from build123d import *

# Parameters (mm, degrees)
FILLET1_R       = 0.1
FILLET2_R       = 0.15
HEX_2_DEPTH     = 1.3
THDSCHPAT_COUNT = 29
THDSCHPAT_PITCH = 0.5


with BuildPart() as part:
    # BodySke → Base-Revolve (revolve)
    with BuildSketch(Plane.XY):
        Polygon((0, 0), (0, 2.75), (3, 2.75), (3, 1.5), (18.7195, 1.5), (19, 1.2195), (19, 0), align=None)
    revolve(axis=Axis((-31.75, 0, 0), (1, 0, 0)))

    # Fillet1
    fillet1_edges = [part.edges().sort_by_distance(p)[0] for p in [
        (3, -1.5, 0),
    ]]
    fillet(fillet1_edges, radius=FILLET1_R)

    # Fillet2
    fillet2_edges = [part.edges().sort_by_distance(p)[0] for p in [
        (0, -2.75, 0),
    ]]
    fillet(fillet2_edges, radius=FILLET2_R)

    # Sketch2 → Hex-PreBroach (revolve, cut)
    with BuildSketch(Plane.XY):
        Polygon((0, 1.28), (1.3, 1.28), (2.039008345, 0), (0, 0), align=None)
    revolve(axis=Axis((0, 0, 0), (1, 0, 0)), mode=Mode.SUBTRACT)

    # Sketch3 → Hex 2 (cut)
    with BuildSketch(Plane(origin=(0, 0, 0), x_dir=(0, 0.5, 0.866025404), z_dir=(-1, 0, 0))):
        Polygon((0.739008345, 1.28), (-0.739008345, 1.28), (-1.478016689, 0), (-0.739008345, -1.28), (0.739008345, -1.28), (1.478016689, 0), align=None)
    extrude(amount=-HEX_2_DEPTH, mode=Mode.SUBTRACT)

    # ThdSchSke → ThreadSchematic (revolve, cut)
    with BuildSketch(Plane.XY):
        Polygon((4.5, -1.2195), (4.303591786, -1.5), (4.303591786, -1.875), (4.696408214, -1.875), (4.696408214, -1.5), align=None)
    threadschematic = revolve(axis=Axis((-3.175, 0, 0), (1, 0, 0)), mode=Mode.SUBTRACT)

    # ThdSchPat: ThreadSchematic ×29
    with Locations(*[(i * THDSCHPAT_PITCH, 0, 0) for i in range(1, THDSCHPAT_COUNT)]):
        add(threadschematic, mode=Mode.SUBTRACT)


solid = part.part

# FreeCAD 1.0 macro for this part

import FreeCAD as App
import Part
import Sketcher
Q = App.Units.Quantity


def edges_at(feature, points):
    """Names of the edges that pass closest to the given points."""
    edges = feature.Shape.Edges
    near = lambda p: min(range(len(edges)), key=lambda i: edges[i].distToShape(Part.Vertex(*p))[0])
    return sorted({f"Edge{near(p) + 1}" for p in points})

doc = App.newDocument("Part")
params = doc.addObject("Spreadsheet::Sheet", "Params")
for row, (alias, value) in enumerate([
    ("sketch1_width", "19 mm"),
    ("sketch1_width2", "3 mm"),
    ("sketch1_height", "2.75 mm"),
    ("sketch1_height2", "1.25 mm"),
    ("revolution_angle", "360 deg"),
    ("fillet_radius", "0.1 mm"),
    ("fillet2_radius", "0.15 mm"),
    ("sketch2_width", "1.3 mm"),
    ("sketch2_height", "1.28 mm"),
    ("groove_angle", "360 deg"),
    ("pocket1_length", "1.3 mm"),
    ("groove2_angle", "360 deg"),
    ("linearpattern_pitch", "0.5 mm"),
], start=1):
    params.set(f"A{row}", alias)
    params.set(f"B{row}", "=" + value)
    params.setAlias(f"B{row}", alias)

body = doc.addObject("PartDesign::Body", "Body")

sketch1 = doc.addObject("Sketcher::SketchObject", "Sketch")
body.addObject(sketch1)
sketch1.AttachmentSupport = (doc.XY_Plane, [""])
sketch1.MapMode = "FlatFace"
sketch1.addGeometry([
    Part.LineSegment(App.Vector(0, 2.75, 0), App.Vector(0, 0, 0)),
    Part.LineSegment(App.Vector(0, 0, 0), App.Vector(19, 0, 0)),
    Part.LineSegment(App.Vector(19, 0, 0), App.Vector(19, 1.22, 0)),
    Part.LineSegment(App.Vector(19, 1.22, 0), App.Vector(18.72, 1.5, 0)),
    Part.LineSegment(App.Vector(18.72, 1.5, 0), App.Vector(3, 1.5, 0)),
    Part.LineSegment(App.Vector(3, 1.5, 0), App.Vector(3, 2.75, 0)),
    Part.LineSegment(App.Vector(3, 2.75, 0), App.Vector(0, 2.75, 0)),
], False)
sketch1.addConstraint([
    Sketcher.Constraint("Coincident", 0, 2, 1, 1),
    Sketcher.Constraint("Coincident", 1, 2, 2, 1),
    Sketcher.Constraint("Coincident", 2, 2, 3, 1),
    Sketcher.Constraint("Coincident", 3, 2, 4, 1),
    Sketcher.Constraint("Coincident", 4, 2, 5, 1),
    Sketcher.Constraint("Coincident", 5, 2, 6, 1),
    Sketcher.Constraint("Coincident", 6, 2, 0, 1),
    Sketcher.Constraint("Vertical", 0),
    Sketcher.Constraint("Horizontal", 1),
    Sketcher.Constraint("Vertical", 2),
    Sketcher.Constraint("Horizontal", 4),
    Sketcher.Constraint("Vertical", 5),
    Sketcher.Constraint("Horizontal", 6),
    Sketcher.Constraint("Coincident", 0, 2, -1, 1),
    Sketcher.Constraint("DistanceX", 1, 1, 1, 2, Q("19 mm")),
    Sketcher.Constraint("DistanceX", 6, 2, 6, 1, Q("3 mm")),
    Sketcher.Constraint("Angle", 3, Q("135 deg")),
    Sketcher.Constraint("DistanceY", 0, 2, 0, 1, Q("2.75 mm")),
    Sketcher.Constraint("DistanceY", 5, 1, 5, 2, Q("1.25 mm")),
    Sketcher.Constraint("DistanceX", 4, 2, 4, 1, Q("15.7195 mm")),
])
sketch1.setExpression("Constraints[14]", "Params.sketch1_width")
sketch1.setExpression("Constraints[15]", "Params.sketch1_width2")
sketch1.setExpression("Constraints[17]", "Params.sketch1_height")
sketch1.setExpression("Constraints[18]", "Params.sketch1_height2")
revolution = doc.addObject("PartDesign::Revolution", "Revolution")
body.addObject(revolution)
revolution.Profile = sketch1
revolution.ReferenceAxis = (sketch1, ["H_Axis"])
revolution.setExpression("Angle", "Params.revolution_angle")
doc.recompute()

fillet = doc.addObject("PartDesign::Fillet", "Fillet")
body.addObject(fillet)
fillet.Base = (revolution, edges_at(revolution, [(3, -1.5, 0)]))
fillet.setExpression("Radius", "Params.fillet_radius")
doc.recompute()

fillet2 = doc.addObject("PartDesign::Fillet", "Fillet001")
body.addObject(fillet2)
fillet2.Base = (fillet, edges_at(fillet, [(0, -2.75, 0)]))
fillet2.setExpression("Radius", "Params.fillet2_radius")

sketch2 = doc.addObject("Sketcher::SketchObject", "Sketch001")
body.addObject(sketch2)
sketch2.AttachmentSupport = (doc.XY_Plane, [""])
sketch2.MapMode = "FlatFace"
sketch2.addGeometry([
    Part.LineSegment(App.Vector(1.3, 1.3, 0), App.Vector(0, 1.3, 0)),
    Part.LineSegment(App.Vector(0, 1.3, 0), App.Vector(0, 0, 0)),
    Part.LineSegment(App.Vector(0, 0, 0), App.Vector(2, 0, 0)),
    Part.LineSegment(App.Vector(2, 0, 0), App.Vector(1.3, 1.3, 0)),
], False)
sketch2.addConstraint([
    Sketcher.Constraint("Coincident", 0, 2, 1, 1),
    Sketcher.Constraint("Coincident", 1, 2, 2, 1),
    Sketcher.Constraint("Coincident", 2, 2, 3, 1),
    Sketcher.Constraint("Coincident", 3, 2, 0, 1),
    Sketcher.Constraint("Horizontal", 0),
    Sketcher.Constraint("Vertical", 1),
    Sketcher.Constraint("Horizontal", 2),
    Sketcher.Constraint("Coincident", 1, 2, -1, 1),
    Sketcher.Constraint("Angle", 3, Q("120 deg")),
    Sketcher.Constraint("DistanceX", 0, 2, 0, 1, Q("1.3 mm")),
    Sketcher.Constraint("DistanceY", 1, 2, 1, 1, Q("1.28 mm")),
])
sketch2.setExpression("Constraints[9]", "Params.sketch2_width")
sketch2.setExpression("Constraints[10]", "Params.sketch2_height")
groove = doc.addObject("PartDesign::Groove", "Groove")
body.addObject(groove)
groove.Profile = sketch2
groove.ReferenceAxis = (sketch2, ["H_Axis"])
groove.setExpression("Angle", "Params.groove_angle")

sketch3 = doc.addObject("Sketcher::SketchObject", "Sketch002")
body.addObject(sketch3)
sketch3.AttachmentSupport = (doc.YZ_Plane, [""])
sketch3.MapMode = "FlatFace"
sketch3.addGeometry([
    Part.LineSegment(App.Vector(1.5, 0, 0), App.Vector(0.7, -1.3, 0)),
    Part.LineSegment(App.Vector(0.7, -1.3, 0), App.Vector(-0.7, -1.3, 0)),
    Part.LineSegment(App.Vector(-0.7, -1.3, 0), App.Vector(-1.5, 0, 0)),
    Part.LineSegment(App.Vector(-1.5, 0, 0), App.Vector(-0.7, 1.3, 0)),
    Part.LineSegment(App.Vector(-0.7, 1.3, 0), App.Vector(0.7, 1.3, 0)),
    Part.LineSegment(App.Vector(0.7, 1.3, 0), App.Vector(1.5, 0, 0)),
], False)
sketch3.addConstraint([
    Sketcher.Constraint("Coincident", 0, 2, 1, 1),
    Sketcher.Constraint("Coincident", 1, 2, 2, 1),
    Sketcher.Constraint("Coincident", 2, 2, 3, 1),
    Sketcher.Constraint("Coincident", 3, 2, 4, 1),
    Sketcher.Constraint("Coincident", 4, 2, 5, 1),
    Sketcher.Constraint("Coincident", 5, 2, 0, 1),
    Sketcher.Constraint("Horizontal", 1),
    Sketcher.Constraint("Horizontal", 4),
    Sketcher.Constraint("Symmetric", 0, 2, 3, 2, -1, 1),
    Sketcher.Constraint("Symmetric", 2, 2, 5, 2, -1, 1),
    Sketcher.Constraint("PointOnObject", 2, 2, -1),
    Sketcher.Constraint("Parallel", 2, 5),
    Sketcher.Constraint("Vertical", 1, 2, 3, 2),
    Sketcher.Constraint("Angle", 0, Q("-120 deg")),
    Sketcher.Constraint("DistanceY", 0, 2, -1, 1, Q("1.28 mm")),
    Sketcher.Constraint("DistanceX", 1, 2, 1, 1, Q("1.478017 mm")),
])
pocket1 = doc.addObject("PartDesign::Pocket", "Pocket")
body.addObject(pocket1)
pocket1.Profile = sketch3
pocket1.setExpression("Length", "Params.pocket1_length")
pocket1.Reversed = True

sketch4 = doc.addObject("Sketcher::SketchObject", "Sketch003")
body.addObject(sketch4)
sketch4.AttachmentSupport = (doc.XY_Plane, [""])
sketch4.MapMode = "FlatFace"
sketch4.addGeometry([
    Part.LineSegment(App.Vector(4.5, -1.22, 0), App.Vector(4.3, -1.5, 0)),
    Part.LineSegment(App.Vector(4.3, -1.5, 0), App.Vector(4.3, -1.88, 0)),
    Part.LineSegment(App.Vector(4.3, -1.88, 0), App.Vector(4.7, -1.88, 0)),
    Part.LineSegment(App.Vector(4.7, -1.88, 0), App.Vector(4.7, -1.5, 0)),
    Part.LineSegment(App.Vector(4.7, -1.5, 0), App.Vector(4.5, -1.22, 0)),
], False)
sketch4.addConstraint([
    Sketcher.Constraint("Coincident", 0, 2, 1, 1),
    Sketcher.Constraint("Coincident", 1, 2, 2, 1),
    Sketcher.Constraint("Coincident", 2, 2, 3, 1),
    Sketcher.Constraint("Coincident", 3, 2, 4, 1),
    Sketcher.Constraint("Coincident", 4, 2, 0, 1),
    Sketcher.Constraint("Vertical", 1),
    Sketcher.Constraint("Horizontal", 2),
    Sketcher.Constraint("Vertical", 3),
    Sketcher.Constraint("Horizontal", 0, 2, 3, 2),
    Sketcher.Constraint("Equal", 0, 4),
    Sketcher.Constraint("Angle", 0, Q("-125 deg")),
    Sketcher.Constraint("DistanceY", 0, 2, -1, 1, Q("1.5 mm")),
    Sketcher.Constraint("DistanceX", -1, 1, 4, 2, Q("4.5 mm")),
    Sketcher.Constraint("DistanceY", 1, 2, 1, 1, Q("0.375 mm")),
    Sketcher.Constraint("DistanceY", 4, 2, -1, 1, Q("1.2195 mm")),
])
groove2 = doc.addObject("PartDesign::Groove", "Groove001")
body.addObject(groove2)
groove2.Profile = sketch4
groove2.ReferenceAxis = (sketch4, ["H_Axis"])
groove2.setExpression("Angle", "Params.groove2_angle")
doc.recompute()

linearpattern = doc.addObject("PartDesign::LinearPattern", "LinearPattern")
body.addObject(linearpattern)
linearpattern.Originals = [groove2]
linearpattern.Direction = (doc.X_Axis, [""])
linearpattern.Mode = "offset"
linearpattern.setExpression("Offset", "Params.linearpattern_pitch")
linearpattern.Occurrences = 29
body.Tip = linearpattern

doc.recompute()
